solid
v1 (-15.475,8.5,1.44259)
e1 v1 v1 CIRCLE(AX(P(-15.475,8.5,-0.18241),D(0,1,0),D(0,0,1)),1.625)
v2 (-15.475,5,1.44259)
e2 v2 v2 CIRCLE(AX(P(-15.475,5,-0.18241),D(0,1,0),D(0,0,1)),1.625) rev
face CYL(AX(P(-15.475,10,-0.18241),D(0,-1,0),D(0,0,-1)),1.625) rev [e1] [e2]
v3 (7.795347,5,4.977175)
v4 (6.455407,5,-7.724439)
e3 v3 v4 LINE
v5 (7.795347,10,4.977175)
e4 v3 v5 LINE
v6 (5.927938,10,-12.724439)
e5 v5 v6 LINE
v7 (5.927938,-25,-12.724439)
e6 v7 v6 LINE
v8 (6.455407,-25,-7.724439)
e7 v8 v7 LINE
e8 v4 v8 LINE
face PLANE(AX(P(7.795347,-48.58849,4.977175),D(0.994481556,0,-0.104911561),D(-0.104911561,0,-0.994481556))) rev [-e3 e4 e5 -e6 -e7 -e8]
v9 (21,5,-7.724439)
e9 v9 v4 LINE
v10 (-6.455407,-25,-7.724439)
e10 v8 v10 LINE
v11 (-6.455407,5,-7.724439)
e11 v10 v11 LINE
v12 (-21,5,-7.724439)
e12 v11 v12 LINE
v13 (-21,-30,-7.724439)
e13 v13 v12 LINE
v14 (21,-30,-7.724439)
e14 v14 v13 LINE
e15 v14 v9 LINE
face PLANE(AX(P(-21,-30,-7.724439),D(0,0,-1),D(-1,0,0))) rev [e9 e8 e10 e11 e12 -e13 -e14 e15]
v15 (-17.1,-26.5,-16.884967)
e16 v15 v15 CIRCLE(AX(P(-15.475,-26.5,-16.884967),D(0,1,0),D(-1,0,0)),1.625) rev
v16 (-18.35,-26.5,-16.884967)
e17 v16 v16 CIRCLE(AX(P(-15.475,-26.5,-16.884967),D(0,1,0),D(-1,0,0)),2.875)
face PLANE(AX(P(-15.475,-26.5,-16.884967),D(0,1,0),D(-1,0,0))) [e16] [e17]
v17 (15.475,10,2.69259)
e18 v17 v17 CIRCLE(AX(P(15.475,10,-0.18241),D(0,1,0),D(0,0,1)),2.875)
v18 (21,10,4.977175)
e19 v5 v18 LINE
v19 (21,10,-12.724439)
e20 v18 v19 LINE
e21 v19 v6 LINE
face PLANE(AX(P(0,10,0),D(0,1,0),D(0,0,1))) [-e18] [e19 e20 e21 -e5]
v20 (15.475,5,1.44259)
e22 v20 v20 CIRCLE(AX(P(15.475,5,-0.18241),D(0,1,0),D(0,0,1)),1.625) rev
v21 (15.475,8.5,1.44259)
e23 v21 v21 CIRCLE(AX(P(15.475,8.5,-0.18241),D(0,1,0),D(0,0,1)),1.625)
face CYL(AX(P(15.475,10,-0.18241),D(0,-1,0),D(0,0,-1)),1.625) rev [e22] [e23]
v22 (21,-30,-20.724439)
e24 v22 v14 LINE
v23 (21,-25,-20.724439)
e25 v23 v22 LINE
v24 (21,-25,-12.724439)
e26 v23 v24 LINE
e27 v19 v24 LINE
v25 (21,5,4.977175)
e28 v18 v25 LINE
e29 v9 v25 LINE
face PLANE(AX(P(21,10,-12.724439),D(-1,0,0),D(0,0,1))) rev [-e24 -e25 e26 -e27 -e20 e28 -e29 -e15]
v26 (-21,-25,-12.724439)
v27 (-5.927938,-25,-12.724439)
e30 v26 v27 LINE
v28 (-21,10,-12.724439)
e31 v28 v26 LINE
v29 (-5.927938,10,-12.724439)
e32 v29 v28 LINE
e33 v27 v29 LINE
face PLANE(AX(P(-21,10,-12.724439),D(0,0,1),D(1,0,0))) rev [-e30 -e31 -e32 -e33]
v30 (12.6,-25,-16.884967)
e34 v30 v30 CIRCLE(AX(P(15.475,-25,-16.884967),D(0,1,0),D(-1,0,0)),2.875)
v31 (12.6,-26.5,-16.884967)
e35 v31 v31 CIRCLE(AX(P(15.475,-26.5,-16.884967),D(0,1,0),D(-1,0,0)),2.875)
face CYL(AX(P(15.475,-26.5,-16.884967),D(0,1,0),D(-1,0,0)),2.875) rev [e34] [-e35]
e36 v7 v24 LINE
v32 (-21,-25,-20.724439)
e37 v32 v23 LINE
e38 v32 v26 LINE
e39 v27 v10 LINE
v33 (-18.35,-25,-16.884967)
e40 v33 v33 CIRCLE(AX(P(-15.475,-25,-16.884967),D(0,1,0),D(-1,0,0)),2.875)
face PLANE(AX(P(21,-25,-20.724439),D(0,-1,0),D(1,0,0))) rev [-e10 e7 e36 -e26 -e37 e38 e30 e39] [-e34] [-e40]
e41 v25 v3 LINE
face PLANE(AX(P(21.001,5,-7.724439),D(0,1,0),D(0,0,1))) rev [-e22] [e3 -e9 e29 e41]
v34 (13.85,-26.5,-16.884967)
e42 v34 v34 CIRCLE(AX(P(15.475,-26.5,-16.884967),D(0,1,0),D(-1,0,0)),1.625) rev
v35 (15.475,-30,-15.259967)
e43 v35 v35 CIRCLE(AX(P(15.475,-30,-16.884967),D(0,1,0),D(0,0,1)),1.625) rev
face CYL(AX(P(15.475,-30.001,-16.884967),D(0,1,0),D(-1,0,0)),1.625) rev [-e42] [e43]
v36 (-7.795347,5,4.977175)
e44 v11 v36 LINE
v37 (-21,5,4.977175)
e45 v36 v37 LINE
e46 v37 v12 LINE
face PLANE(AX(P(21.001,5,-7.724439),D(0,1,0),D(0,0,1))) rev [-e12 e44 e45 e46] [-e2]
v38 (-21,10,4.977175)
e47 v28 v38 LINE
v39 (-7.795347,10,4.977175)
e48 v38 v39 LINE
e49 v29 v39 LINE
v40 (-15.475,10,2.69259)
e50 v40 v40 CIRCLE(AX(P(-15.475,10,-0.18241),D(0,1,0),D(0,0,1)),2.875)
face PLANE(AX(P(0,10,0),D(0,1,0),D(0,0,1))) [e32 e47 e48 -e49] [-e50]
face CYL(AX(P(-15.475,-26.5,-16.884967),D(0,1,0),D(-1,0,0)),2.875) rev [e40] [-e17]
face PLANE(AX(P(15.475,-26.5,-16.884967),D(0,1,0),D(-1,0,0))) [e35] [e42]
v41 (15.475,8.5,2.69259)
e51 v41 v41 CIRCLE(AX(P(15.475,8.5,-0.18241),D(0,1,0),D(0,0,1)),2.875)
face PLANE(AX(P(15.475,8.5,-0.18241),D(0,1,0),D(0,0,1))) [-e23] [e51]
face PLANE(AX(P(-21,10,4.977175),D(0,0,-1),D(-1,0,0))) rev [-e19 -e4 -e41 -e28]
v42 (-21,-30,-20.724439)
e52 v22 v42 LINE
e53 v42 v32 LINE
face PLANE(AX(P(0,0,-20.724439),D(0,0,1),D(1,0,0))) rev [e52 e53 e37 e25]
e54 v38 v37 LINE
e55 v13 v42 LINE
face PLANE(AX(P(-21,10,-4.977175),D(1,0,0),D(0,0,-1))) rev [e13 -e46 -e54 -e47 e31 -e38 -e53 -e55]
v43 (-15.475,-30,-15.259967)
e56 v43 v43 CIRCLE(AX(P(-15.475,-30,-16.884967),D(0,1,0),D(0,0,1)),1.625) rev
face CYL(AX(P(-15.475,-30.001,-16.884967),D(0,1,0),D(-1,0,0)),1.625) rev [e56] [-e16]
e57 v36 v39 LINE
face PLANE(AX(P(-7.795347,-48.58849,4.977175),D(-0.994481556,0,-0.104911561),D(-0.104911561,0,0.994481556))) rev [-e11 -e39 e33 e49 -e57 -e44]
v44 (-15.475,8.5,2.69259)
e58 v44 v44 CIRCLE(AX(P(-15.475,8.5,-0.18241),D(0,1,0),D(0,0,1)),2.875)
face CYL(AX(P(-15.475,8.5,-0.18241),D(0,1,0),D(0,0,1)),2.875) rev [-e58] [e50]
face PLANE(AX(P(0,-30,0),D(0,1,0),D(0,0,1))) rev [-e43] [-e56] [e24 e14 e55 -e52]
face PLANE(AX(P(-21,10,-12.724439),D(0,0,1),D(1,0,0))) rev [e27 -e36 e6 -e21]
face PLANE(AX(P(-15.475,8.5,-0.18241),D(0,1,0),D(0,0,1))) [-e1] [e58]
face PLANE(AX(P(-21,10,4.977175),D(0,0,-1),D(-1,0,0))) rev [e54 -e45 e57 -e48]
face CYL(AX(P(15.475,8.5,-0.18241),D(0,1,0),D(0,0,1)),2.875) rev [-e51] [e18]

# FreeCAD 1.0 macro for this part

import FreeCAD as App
import Part
import Sketcher

V = App.Vector
Q = App.Units.Quantity

doc = App.newDocument("Part")
params = doc.addObject("Spreadsheet::Sheet", "Params")
for row, (alias, value) in enumerate([
    ("sketch1_diameter", "3.25 mm"),
    ("sketch1_width", "42 mm"),
    ("pad1_length", "10 mm"),
    ("sketch2_diameter", "5.75 mm"),
    ("pocket1_length", "1.5 mm"),
    ("sketch3_width", "42 mm"),
    ("sketch3_height", "5 mm"),
    ("pad2_length", "30 mm"),
    ("sketch4_width", "42 mm"),
    ("sketch4_height", "5 mm"),
    ("pad3_length", "8 mm"),
    ("sketch5_width", "5 mm"),
    ("sketch6_diameter", "3.25 mm"),
    ("sketch7_diameter", "3.25 mm"),
    ("sketch8_diameter", "5.75 mm"),
    ("pocket5_length", "1.5 mm"),
    ("pocket6_length", "35 mm"),
], start=1):
    params.set(f"A{row}", alias)
    params.set(f"B{row}", "=" + value)
    params.setAlias(f"B{row}", alias)

body = doc.addObject("PartDesign::Body", "Body")

sketch1 = body.newObject("Sketcher::SketchObject", "Sketch")
sketch1.AttachmentSupport = (doc.getObject("XZ_Plane"), [""])
sketch1.MapMode = "FlatFace"
sketch1.addGeometry([
    Part.LineSegment(V(-21, 5, 0), V(21, 5, 0)),
    Part.LineSegment(V(21, 5, 0), V(21, -12.7, 0)),
    Part.LineSegment(V(21, -12.7, 0), V(-21, -12.7, 0)),
    Part.LineSegment(V(-21, -12.7, 0), V(-21, 5, 0)),
    Part.Circle(V(-15.5, -0.2, 0), V(0, 0, 1), 1.6),
    Part.Circle(V(15.5, -0.2, 0), V(0, 0, 1), 1.6),
], False)
sketch1.addConstraint([
    Sketcher.Constraint("Coincident", 0, 2, 1, 1),
    Sketcher.Constraint("Coincident", 1, 2, 2, 1),
    Sketcher.Constraint("Coincident", 2, 2, 3, 1),
    Sketcher.Constraint("Coincident", 3, 2, 0, 1),
    Sketcher.Constraint("Horizontal", 0),
    Sketcher.Constraint("Vertical", 1),
    Sketcher.Constraint("Horizontal", 2),
    Sketcher.Constraint("Vertical", 3),
    Sketcher.Constraint("Equal", 4, 5),
    Sketcher.Constraint("Symmetric", 4, 3, 5, 3, -2),
    Sketcher.Constraint("Diameter", 4, Q("3.25 mm")),
    Sketcher.Constraint("DistanceX", 0, 1, 0, 2, Q("42 mm")),
    Sketcher.Constraint("DistanceX", -1, 1, 0, 2, Q("21 mm")),
    Sketcher.Constraint("DistanceX", 4, 3, 5, 3, Q("30.95 mm")),
    Sketcher.Constraint("DistanceY", 1, 2, 1, 1, Q("17.701613 mm")),
    Sketcher.Constraint("DistanceY", 4, 3, -1, 1, Q("0.18241 mm")),
    Sketcher.Constraint("DistanceY", 1, 2, -1, 1, Q("12.724439 mm")),
])
sketch1.setExpression("Constraints[10]", "Params.sketch1_diameter")
sketch1.setExpression("Constraints[11]", "Params.sketch1_width")
pad1 = body.newObject("PartDesign::Pad", "Pad")
pad1.Profile = sketch1
pad1.setExpression("Length", "Params.pad1_length")
pad1.Reversed = True

sketch2 = body.newObject("Sketcher::SketchObject", "Sketch001")
sketch2.AttachmentSupport = (doc.getObject("XZ_Plane"), [""])
sketch2.MapMode = "FlatFace"
sketch2.AttachmentOffset = App.Placement(V(0, 0, -10), App.Rotation())
sketch2.addGeometry([
    Part.Circle(V(-15.5, -0.2, 0), V(0, 0, 1), 2.9),
    Part.Circle(V(15.5, -0.2, 0), V(0, 0, 1), 2.9),
], False)
sketch2.addConstraint([
    Sketcher.Constraint("Equal", 0, 1),
    Sketcher.Constraint("Symmetric", 0, 3, 1, 3, -2),
    Sketcher.Constraint("Diameter", 0, Q("5.75 mm")),
    Sketcher.Constraint("DistanceX", 0, 3, 1, 3, Q("30.95 mm")),
    Sketcher.Constraint("DistanceY", 0, 3, -1, 1, Q("0.18241 mm")),
])
sketch2.setExpression("Constraints[2]", "Params.sketch2_diameter")
pocket1 = body.newObject("PartDesign::Pocket", "Pocket")
pocket1.Profile = sketch2
pocket1.setExpression("Length", "Params.pocket1_length")
pocket1.Reversed = True

sketch3 = body.newObject("Sketcher::SketchObject", "Sketch002")
sketch3.AttachmentSupport = (doc.getObject("XZ_Plane"), [""])
sketch3.MapMode = "FlatFace"
sketch3.addGeometry([
    Part.LineSegment(V(-21, -8, 0), V(-21, -13, 0)),
    Part.LineSegment(V(-21, -13, 0), V(21, -13, 0)),
    Part.LineSegment(V(21, -13, 0), V(21, -8, 0)),
    Part.LineSegment(V(21, -8, 0), V(-21, -8, 0)),
], False)
sketch3.addConstraint([
    Sketcher.Constraint("Coincident", 0, 2, 1, 1),
    Sketcher.Constraint("Coincident", 1, 2, 2, 1),
    Sketcher.Constraint("Coincident", 2, 2, 3, 1),
    Sketcher.Constraint("Coincident", 3, 2, 0, 1),
    Sketcher.Constraint("Vertical", 0),
    Sketcher.Constraint("Horizontal", 1),
    Sketcher.Constraint("Vertical", 2),
    Sketcher.Constraint("Horizontal", 3),
    Sketcher.Constraint("DistanceX", 1, 1, 1, 2, Q("42 mm")),
    Sketcher.Constraint("DistanceY", 0, 2, 0, 1, Q("5 mm")),
    Sketcher.Constraint("DistanceX", 0, 2, -1, 1, Q("21 mm")),
    Sketcher.Constraint("DistanceY", 0, 2, -1, 1, Q("12.724439 mm")),
])
sketch3.setExpression("Constraints[8]", "Params.sketch3_width")
sketch3.setExpression("Constraints[9]", "Params.sketch3_height")
pad2 = body.newObject("PartDesign::Pad", "Pad001")
pad2.Profile = sketch3
pad2.setExpression("Length", "Params.pad2_length")

sketch4 = body.newObject("Sketcher::SketchObject", "Sketch003")
sketch4.AttachmentSupport = (doc.getObject("XY_Plane"), [""])
sketch4.MapMode = "FlatFace"
sketch4.AttachmentOffset = App.Placement(V(0, 0, -12.724439), App.Rotation())
sketch4.addGeometry([
    Part.LineSegment(V(21, -25, 0), V(21, -30, 0)),
    Part.LineSegment(V(21, -30, 0), V(-21, -30, 0)),
    Part.LineSegment(V(-21, -30, 0), V(-21, -25, 0)),
    Part.LineSegment(V(-21, -25, 0), V(21, -25, 0)),
], False)
sketch4.addConstraint([
    Sketcher.Constraint("Coincident", 0, 2, 1, 1),
    Sketcher.Constraint("Coincident", 1, 2, 2, 1),
    Sketcher.Constraint("Coincident", 2, 2, 3, 1),
    Sketcher.Constraint("Coincident", 3, 2, 0, 1),
    Sketcher.Constraint("Vertical", 0),
    Sketcher.Constraint("Horizontal", 1),
    Sketcher.Constraint("Vertical", 2),
    Sketcher.Constraint("Horizontal", 3),
    Sketcher.Constraint("DistanceX", 1, 2, 1, 1, Q("42 mm")),
    Sketcher.Constraint("DistanceY", 0, 2, 0, 1, Q("5 mm")),
    Sketcher.Constraint("DistanceX", -1, 1, 0, 2, Q("21 mm")),
    Sketcher.Constraint("DistanceY", 0, 2, -1, 1, Q("30 mm")),
])
sketch4.setExpression("Constraints[8]", "Params.sketch4_width")
sketch4.setExpression("Constraints[9]", "Params.sketch4_height")
pad3 = body.newObject("PartDesign::Pad", "Pad002")
pad3.Profile = sketch4
pad3.setExpression("Length", "Params.pad3_length")
pad3.Reversed = True

sketch5 = body.newObject("Sketcher::SketchObject", "Sketch004")
sketch5.AttachmentSupport = (doc.getObject("YZ_Plane"), [""])
sketch5.MapMode = "FlatFace"
sketch5.AttachmentOffset = App.Placement(V(0, 0, -21), App.Rotation())
sketch5.addGeometry([
    Part.LineSegment(V(5, -8, 0), V(0, -8, 0)),
    Part.LineSegment(V(0, -8, 0), V(0, 5, 0)),
    Part.LineSegment(V(0, 5, 0), V(5, 5, 0)),
    Part.LineSegment(V(5, 5, 0), V(5, -8, 0)),
], False)
sketch5.addConstraint([
    Sketcher.Constraint("Coincident", 0, 2, 1, 1),
    Sketcher.Constraint("Coincident", 1, 2, 2, 1),
    Sketcher.Constraint("Coincident", 2, 2, 3, 1),
    Sketcher.Constraint("Coincident", 3, 2, 0, 1),
    Sketcher.Constraint("Horizontal", 0),
    Sketcher.Constraint("Vertical", 1),
    Sketcher.Constraint("Horizontal", 2),
    Sketcher.Constraint("Vertical", 3),
    Sketcher.Constraint("PointOnObject", 0, 2, -2),
    Sketcher.Constraint("DistanceX", 0, 2, 0, 1, Q("5 mm")),
    Sketcher.Constraint("DistanceY", 1, 1, 1, 2, Q("12.701613 mm")),
    Sketcher.Constraint("DistanceY", 0, 2, -1, 1, Q("7.724439 mm")),
])
sketch5.setExpression("Constraints[9]", "Params.sketch5_width")
pocket2 = body.newObject("PartDesign::Pocket", "Pocket001")
pocket2.Profile = sketch5
pocket2.Type = "UpToFirst"
pocket2.Reversed = True

sketch6 = body.newObject("Sketcher::SketchObject", "Sketch005")
sketch6.AttachmentSupport = (doc.getObject("XZ_Plane"), [""])
sketch6.MapMode = "FlatFace"
sketch6.AttachmentOffset = App.Placement(V(0, 0, 25), App.Rotation())
sketch6.addGeometry(Part.Circle(V(-15.5, -16.9, 0), V(0, 0, 1), 1.6), False)
sketch6.addConstraint([
    Sketcher.Constraint("Diameter", 0, Q("3.25 mm")),
    Sketcher.Constraint("DistanceX", 0, 3, -1, 1, Q("15.475 mm")),
    Sketcher.Constraint("DistanceY", 0, 3, -1, 1, Q("16.884967 mm")),
])
sketch6.setExpression("Constraints[0]", "Params.sketch6_diameter")
pocket3 = body.newObject("PartDesign::Pocket", "Pocket002")
pocket3.Profile = sketch6
pocket3.Type = "UpToFirst"
pocket3.Reversed = True

sketch7 = body.newObject("Sketcher::SketchObject", "Sketch006")
sketch7.AttachmentSupport = (doc.getObject("XZ_Plane"), [""])
sketch7.MapMode = "FlatFace"
sketch7.AttachmentOffset = App.Placement(V(0, 0, 25), App.Rotation())
sketch7.addGeometry(Part.Circle(V(15.5, -16.9, 0), V(0, 0, 1), 1.6), False)
sketch7.addConstraint([
    Sketcher.Constraint("Diameter", 0, Q("3.25 mm")),
    Sketcher.Constraint("DistanceX", -1, 1, 0, 3, Q("15.475 mm")),
    Sketcher.Constraint("DistanceY", 0, 3, -1, 1, Q("16.884967 mm")),
])
sketch7.setExpression("Constraints[0]", "Params.sketch7_diameter")
pocket4 = body.newObject("PartDesign::Pocket", "Pocket003")
pocket4.Profile = sketch7
pocket4.Type = "UpToFirst"
pocket4.Reversed = True

sketch8 = body.newObject("Sketcher::SketchObject", "Sketch007")
sketch8.AttachmentSupport = (doc.getObject("XZ_Plane"), [""])
sketch8.MapMode = "FlatFace"
sketch8.AttachmentOffset = App.Placement(V(0, 0, 25), App.Rotation())
sketch8.addGeometry([
    Part.Circle(V(-15.5, -16.9, 0), V(0, 0, 1), 2.9),
    Part.Circle(V(15.5, -16.9, 0), V(0, 0, 1), 2.9),
], False)
sketch8.addConstraint([
    Sketcher.Constraint("Equal", 0, 1),
    Sketcher.Constraint("Symmetric", 0, 3, 1, 3, -2),
    Sketcher.Constraint("Diameter", 0, Q("5.75 mm")),
    Sketcher.Constraint("DistanceX", 0, 3, 1, 3, Q("30.95 mm")),
    Sketcher.Constraint("DistanceY", 0, 3, -1, 1, Q("16.884967 mm")),
])
sketch8.setExpression("Constraints[2]", "Params.sketch8_diameter")
pocket5 = body.newObject("PartDesign::Pocket", "Pocket004")
pocket5.Profile = sketch8
pocket5.setExpression("Length", "Params.pocket5_length")
pocket5.Reversed = True

sketch9 = body.newObject("Sketcher::SketchObject", "Sketch008")
sketch9.AttachmentSupport = (doc.getObject("XZ_Plane"), [""])
sketch9.MapMode = "FlatFace"
sketch9.AttachmentOffset = App.Placement(V(0, 0, -10), App.Rotation())
sketch9.addGeometry([
    Part.LineSegment(V(-6, -13, 0), V(-8, 5, 0)),
    Part.LineSegment(V(-8, 5, 0), V(8, 5, 0)),
    Part.LineSegment(V(8, 5, 0), V(6, -13, 0)),
    Part.LineSegment(V(6, -13, 0), V(-6, -13, 0)),
], False)
sketch9.addConstraint([
    Sketcher.Constraint("Coincident", 0, 2, 1, 1),
    Sketcher.Constraint("Coincident", 1, 2, 2, 1),
    Sketcher.Constraint("Coincident", 2, 2, 3, 1),
    Sketcher.Constraint("Coincident", 3, 2, 0, 1),
    Sketcher.Constraint("Horizontal", 1),
    Sketcher.Constraint("Horizontal", 3),
    Sketcher.Constraint("Equal", 0, 2),
    Sketcher.Constraint("Distance", 0, Q("17.799841 mm")),
    Sketcher.Constraint("DistanceX", 1, 1, 1, 2, Q("15.590695 mm")),
    Sketcher.Constraint("DistanceX", 3, 2, 3, 1, Q("11.855876 mm")),
    Sketcher.Constraint("DistanceX", -1, 1, 2, 2, Q("5.927938 mm")),
    Sketcher.Constraint("DistanceY", 2, 2, -1, 1, Q("12.724439 mm")),
])
pocket6 = body.newObject("PartDesign::Pocket", "Pocket005")
pocket6.Profile = sketch9
pocket6.setExpression("Length", "Params.pocket6_length")
pocket6.Reversed = True

doc.recompute()
